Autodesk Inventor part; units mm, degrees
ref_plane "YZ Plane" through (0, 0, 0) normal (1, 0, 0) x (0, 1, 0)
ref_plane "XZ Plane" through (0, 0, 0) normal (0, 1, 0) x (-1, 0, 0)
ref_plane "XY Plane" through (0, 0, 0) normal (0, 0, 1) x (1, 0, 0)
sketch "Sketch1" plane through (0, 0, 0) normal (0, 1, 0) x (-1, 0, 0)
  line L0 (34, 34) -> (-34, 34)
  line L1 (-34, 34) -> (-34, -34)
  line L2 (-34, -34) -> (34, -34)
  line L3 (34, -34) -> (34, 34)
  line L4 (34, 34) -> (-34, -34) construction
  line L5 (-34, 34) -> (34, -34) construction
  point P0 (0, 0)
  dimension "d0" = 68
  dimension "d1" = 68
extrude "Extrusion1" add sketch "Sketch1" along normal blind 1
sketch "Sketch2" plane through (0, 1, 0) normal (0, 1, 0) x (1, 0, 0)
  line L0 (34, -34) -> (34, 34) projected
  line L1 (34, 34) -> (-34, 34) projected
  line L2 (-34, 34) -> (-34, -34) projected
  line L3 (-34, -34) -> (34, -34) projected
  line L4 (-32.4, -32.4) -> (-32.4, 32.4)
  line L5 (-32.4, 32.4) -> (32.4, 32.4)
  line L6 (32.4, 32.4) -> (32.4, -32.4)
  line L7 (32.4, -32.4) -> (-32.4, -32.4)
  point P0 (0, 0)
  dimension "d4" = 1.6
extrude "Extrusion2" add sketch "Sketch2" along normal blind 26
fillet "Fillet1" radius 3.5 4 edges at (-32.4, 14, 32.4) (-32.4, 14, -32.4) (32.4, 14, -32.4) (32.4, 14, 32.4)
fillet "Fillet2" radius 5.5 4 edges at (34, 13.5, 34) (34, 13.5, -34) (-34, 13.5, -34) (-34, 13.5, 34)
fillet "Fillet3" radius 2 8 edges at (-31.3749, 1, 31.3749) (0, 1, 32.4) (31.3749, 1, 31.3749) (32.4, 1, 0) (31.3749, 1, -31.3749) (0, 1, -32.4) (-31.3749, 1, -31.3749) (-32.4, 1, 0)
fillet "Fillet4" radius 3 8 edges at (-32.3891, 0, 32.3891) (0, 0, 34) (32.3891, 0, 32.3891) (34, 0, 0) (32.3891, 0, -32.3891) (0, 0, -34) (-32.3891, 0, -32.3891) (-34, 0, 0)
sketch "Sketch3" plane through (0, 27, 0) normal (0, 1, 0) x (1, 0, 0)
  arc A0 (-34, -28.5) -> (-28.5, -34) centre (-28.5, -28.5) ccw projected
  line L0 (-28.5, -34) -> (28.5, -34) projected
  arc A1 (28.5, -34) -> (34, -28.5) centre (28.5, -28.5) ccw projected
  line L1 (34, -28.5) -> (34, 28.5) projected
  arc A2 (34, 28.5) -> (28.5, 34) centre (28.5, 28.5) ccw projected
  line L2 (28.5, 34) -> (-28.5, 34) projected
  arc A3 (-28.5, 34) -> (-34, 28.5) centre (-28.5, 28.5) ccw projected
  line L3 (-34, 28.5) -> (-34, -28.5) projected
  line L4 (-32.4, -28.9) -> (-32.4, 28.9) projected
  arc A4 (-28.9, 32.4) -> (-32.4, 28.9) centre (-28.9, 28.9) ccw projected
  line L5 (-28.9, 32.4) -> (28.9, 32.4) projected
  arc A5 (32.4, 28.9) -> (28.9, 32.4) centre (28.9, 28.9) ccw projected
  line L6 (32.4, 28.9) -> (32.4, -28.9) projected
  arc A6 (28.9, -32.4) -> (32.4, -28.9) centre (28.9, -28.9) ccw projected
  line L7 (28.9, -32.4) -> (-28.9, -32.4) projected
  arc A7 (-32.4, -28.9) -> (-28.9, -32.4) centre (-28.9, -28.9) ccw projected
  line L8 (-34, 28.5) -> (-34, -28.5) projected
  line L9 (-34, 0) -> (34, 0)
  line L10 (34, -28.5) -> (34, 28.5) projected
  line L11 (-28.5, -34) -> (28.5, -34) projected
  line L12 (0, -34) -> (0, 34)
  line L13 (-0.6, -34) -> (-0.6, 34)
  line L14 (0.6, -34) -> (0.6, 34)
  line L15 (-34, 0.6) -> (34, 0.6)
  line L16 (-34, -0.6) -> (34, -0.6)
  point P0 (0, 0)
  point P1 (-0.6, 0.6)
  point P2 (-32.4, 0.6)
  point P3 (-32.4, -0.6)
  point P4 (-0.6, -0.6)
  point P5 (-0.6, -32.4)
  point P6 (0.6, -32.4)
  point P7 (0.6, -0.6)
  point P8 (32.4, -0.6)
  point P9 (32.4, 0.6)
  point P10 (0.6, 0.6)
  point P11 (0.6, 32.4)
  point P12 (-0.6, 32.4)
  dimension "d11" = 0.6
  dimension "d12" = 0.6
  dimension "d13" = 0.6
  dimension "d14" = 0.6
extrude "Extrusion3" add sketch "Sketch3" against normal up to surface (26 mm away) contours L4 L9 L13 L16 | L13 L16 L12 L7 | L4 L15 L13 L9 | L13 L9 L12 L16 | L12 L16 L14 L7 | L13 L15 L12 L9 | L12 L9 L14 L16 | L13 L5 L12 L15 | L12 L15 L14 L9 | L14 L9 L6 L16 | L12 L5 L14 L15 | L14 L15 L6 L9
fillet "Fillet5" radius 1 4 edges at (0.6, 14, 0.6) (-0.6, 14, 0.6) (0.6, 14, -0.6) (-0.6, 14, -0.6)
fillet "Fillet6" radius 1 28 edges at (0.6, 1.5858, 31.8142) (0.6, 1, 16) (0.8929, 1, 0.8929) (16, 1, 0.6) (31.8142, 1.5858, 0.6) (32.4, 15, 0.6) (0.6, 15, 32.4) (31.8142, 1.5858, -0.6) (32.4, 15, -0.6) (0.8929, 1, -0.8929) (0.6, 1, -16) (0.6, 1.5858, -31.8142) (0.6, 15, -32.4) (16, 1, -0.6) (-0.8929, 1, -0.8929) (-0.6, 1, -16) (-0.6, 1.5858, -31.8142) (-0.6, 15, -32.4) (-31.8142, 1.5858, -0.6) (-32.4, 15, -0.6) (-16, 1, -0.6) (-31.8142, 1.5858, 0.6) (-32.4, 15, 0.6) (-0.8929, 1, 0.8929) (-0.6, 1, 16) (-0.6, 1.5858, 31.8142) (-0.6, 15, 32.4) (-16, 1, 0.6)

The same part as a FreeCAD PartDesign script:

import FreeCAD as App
import Part
import Sketcher


def edges_at(feature, points):
    """Names of the edges that pass closest to the given points."""
    edges = feature.Shape.Edges
    near = lambda p: min(range(len(edges)), key=lambda i: edges[i].distToShape(Part.Vertex(*p))[0])
    return sorted({f"Edge{near(p) + 1}" for p in points})


def add_polygon(sketch, points):
    """Adds a closed chain of lines whose ends are joined by coincident constraints."""
    first, n = sketch.GeometryCount, len(points)
    for a, b in zip(points, points[1:] + points[:1]):
        sketch.addGeometry(Part.LineSegment(App.Vector(*a, 0), App.Vector(*b, 0)), False)
    for i in range(n):
        sketch.addConstraint(Sketcher.Constraint("Coincident", first + i, 2, first + (i + 1) % n, 1))

doc = App.newDocument("Part")
body = doc.addObject("PartDesign::Body", "Body")

# Sketch on XZ plane
sketch1 = body.newObject("Sketcher::SketchObject", "Sketch")
sketch1.AttachmentSupport = (doc.getObject("XZ_Plane"), [""])
sketch1.MapMode = "FlatFace"
add_polygon(sketch1, [(-34, -34), (-34, 34), (34, 34), (34, -34)])  # lines 0-3
sketch1.addConstraint([
    Sketcher.Constraint("Vertical", 0),
    Sketcher.Constraint("Horizontal", 1),
    Sketcher.Constraint("Vertical", 2),
    Sketcher.Constraint("Horizontal", 3),
    Sketcher.Constraint("Symmetric", 0, 2, 2, 2, -1, 1),
    Sketcher.Constraint("Equal", 3, 0),
    Sketcher.Constraint("DistanceX", 1, 1, 1, 2, 68.0),
])
pad1 = body.newObject("PartDesign::Pad", "Pad")
pad1.Profile = sketch1
pad1.Length = 1
pad1.Reversed = True

# Sketch on XZ plane
sketch2 = body.newObject("Sketcher::SketchObject", "Sketch001")
sketch2.AttachmentSupport = (doc.getObject("XZ_Plane"), [""])
sketch2.MapMode = "FlatFace"
sketch2.AttachmentOffset = App.Placement(App.Vector(0, 0, -1), App.Rotation())
add_polygon(sketch2, [(-34, 34), (34, 34), (34, -34), (-34, -34)])  # lines 0-3
add_polygon(sketch2, [(32.4, 32.4), (-32.4, 32.4), (-32.4, -32.4), (32.4, -32.4)])  # lines 4-7
sketch2.addConstraint([
    Sketcher.Constraint("Horizontal", 0),
    Sketcher.Constraint("Vertical", 1),
    Sketcher.Constraint("Horizontal", 2),
    Sketcher.Constraint("Vertical", 3),
    Sketcher.Constraint("Horizontal", 4),
    Sketcher.Constraint("Vertical", 5),
    Sketcher.Constraint("Horizontal", 6),
    Sketcher.Constraint("Vertical", 7),
    Sketcher.Constraint("Symmetric", 0, 2, 2, 2, -1, 1),
    Sketcher.Constraint("Symmetric", 4, 2, 6, 2, -1, 1),
    Sketcher.Constraint("Equal", 2, 1),
    Sketcher.Constraint("Equal", 6, 5),
    Sketcher.Constraint("DistanceX", 3, 2, 4, 2, 1.6),
    Sketcher.Constraint("DistanceX", 0, 1, 0, 2, 68.0),
])
pad2 = body.newObject("PartDesign::Pad", "Pad001")
pad2.Profile = sketch2
pad2.Length = 26
pad2.Reversed = True
doc.recompute()

fillet = body.newObject("PartDesign::Fillet", "Fillet")
fillet.Base = (pad2, edges_at(pad2, [
    (-32.4, 14, 32.4),
    (-32.4, 14, -32.4),
    (32.4, 14, -32.4),
    (32.4, 14, 32.4),
]))
fillet.Radius = 3.5
doc.recompute()

fillet2 = body.newObject("PartDesign::Fillet", "Fillet001")
fillet2.Base = (fillet, edges_at(fillet, [
    (34, 13.5, 34),
    (34, 13.5, -34),
    (-34, 13.5, -34),
    (-34, 13.5, 34),
]))
fillet2.Radius = 5.5
doc.recompute()

fillet3 = body.newObject("PartDesign::Fillet", "Fillet002")
fillet3.Base = (fillet2, edges_at(fillet2, [
    (-31.375, 1, 31.375),
    (0, 1, 32.4),
    (31.375, 1, 31.375),
    (32.4, 1, 0),
    (31.375, 1, -31.375),
    (0, 1, -32.4),
    (-31.375, 1, -31.375),
    (-32.4, 1, 0),
]))
fillet3.Radius = 2
doc.recompute()

fillet4 = body.newObject("PartDesign::Fillet", "Fillet003")
fillet4.Base = (fillet3, edges_at(fillet3, [
    (-32.389, 0, 32.389),
    (0, 0, 34),
    (32.389, 0, 32.389),
    (34, 0, 0),
    (32.389, 0, -32.389),
    (0, 0, -34),
    (-32.389, 0, -32.389),
    (-34, 0, 0),
]))
fillet4.Radius = 3

# Sketch on XZ plane
sketch3 = body.newObject("Sketcher::SketchObject", "Sketch002")
sketch3.AttachmentSupport = (doc.getObject("XZ_Plane"), [""])
sketch3.MapMode = "FlatFace"
sketch3.AttachmentOffset = App.Placement(App.Vector(0, 0, -27), App.Rotation())
add_polygon(sketch3, [(-32.4, 0.6), (-0.6, 0.6), (-0.6, 32.4), (0.6, 32.4), (0.6, 0.6), (32.4, 0.6), (32.4, -0.6), (0.6, -0.6), (0.6, -32.4), (-0.6, -32.4), (-0.6, -0.6), (-32.4, -0.6)])  # lines 0-11
sketch3.addConstraint([
    Sketcher.Constraint("Horizontal", 0),
    Sketcher.Constraint("Vertical", 1),
    Sketcher.Constraint("Horizontal", 2),
    Sketcher.Constraint("Vertical", 3),
    Sketcher.Constraint("Horizontal", 4),
    Sketcher.Constraint("Vertical", 5),
    Sketcher.Constraint("Horizontal", 6),
    Sketcher.Constraint("Vertical", 7),
    Sketcher.Constraint("Horizontal", 8),
    Sketcher.Constraint("Vertical", 9),
    Sketcher.Constraint("Horizontal", 10),
    Sketcher.Constraint("Vertical", 11),
    Sketcher.Constraint("Symmetric", 0, 2, 6, 2, -1, 1),
    Sketcher.Constraint("Symmetric", 2, 2, 8, 2, -1, 1),
    Sketcher.Constraint("Symmetric", 4, 2, 10, 2, -1, 1),
    Sketcher.Constraint("Symmetric", 0, 2, 3, 2, -2),
    Sketcher.Constraint("Equal", 10, 1),
    Sketcher.Constraint("Equal", 8, 5),
    Sketcher.Constraint("DistanceX", 0, 2, -1, 1, 0.6),
    Sketcher.Constraint("DistanceX", 0, 1, 0, 2, 31.8),
])
pad3 = body.newObject("PartDesign::Pad", "Pad002")
pad3.Profile = sketch3
pad3.Length = 26
doc.recompute()

fillet5 = body.newObject("PartDesign::Fillet", "Fillet004")
fillet5.Base = (pad3, edges_at(pad3, [
    (0.6, 14, 0.6),
    (-0.6, 14, 0.6),
    (0.6, 14, -0.6),
    (-0.6, 14, -0.6),
]))
fillet5.Radius = 1
doc.recompute()

fillet6 = body.newObject("PartDesign::Fillet", "Fillet005")
fillet6.Base = (fillet5, edges_at(fillet5, [
    (0.6, 1.586, 31.814),
    (0.6, 1, 16),
    (0.893, 1, 0.893),
    (16, 1, 0.6),
    (31.814, 1.586, 0.6),
    (32.4, 15, 0.6),
    (0.6, 15, 32.4),
    (31.814, 1.586, -0.6),
    (32.4, 15, -0.6),
    (0.893, 1, -0.893),
    (0.6, 1, -16),
    (0.6, 1.586, -31.814),
    (0.6, 15, -32.4),
    (16, 1, -0.6),
    (-0.893, 1, -0.893),
    (-0.6, 1, -16),
    (-0.6, 1.586, -31.814),
    (-0.6, 15, -32.4),
    (-31.814, 1.586, -0.6),
    (-32.4, 15, -0.6),
    (-16, 1, -0.6),
    (-31.814, 1.586, 0.6),
    (-32.4, 15, 0.6),
    (-0.893, 1, 0.893),
    (-0.6, 1, 16),
    (-0.6, 1.586, 31.814),
    (-0.6, 15, 32.4),
    (-16, 1, 0.6),
]))
fillet6.Radius = 1

doc.recompute()
